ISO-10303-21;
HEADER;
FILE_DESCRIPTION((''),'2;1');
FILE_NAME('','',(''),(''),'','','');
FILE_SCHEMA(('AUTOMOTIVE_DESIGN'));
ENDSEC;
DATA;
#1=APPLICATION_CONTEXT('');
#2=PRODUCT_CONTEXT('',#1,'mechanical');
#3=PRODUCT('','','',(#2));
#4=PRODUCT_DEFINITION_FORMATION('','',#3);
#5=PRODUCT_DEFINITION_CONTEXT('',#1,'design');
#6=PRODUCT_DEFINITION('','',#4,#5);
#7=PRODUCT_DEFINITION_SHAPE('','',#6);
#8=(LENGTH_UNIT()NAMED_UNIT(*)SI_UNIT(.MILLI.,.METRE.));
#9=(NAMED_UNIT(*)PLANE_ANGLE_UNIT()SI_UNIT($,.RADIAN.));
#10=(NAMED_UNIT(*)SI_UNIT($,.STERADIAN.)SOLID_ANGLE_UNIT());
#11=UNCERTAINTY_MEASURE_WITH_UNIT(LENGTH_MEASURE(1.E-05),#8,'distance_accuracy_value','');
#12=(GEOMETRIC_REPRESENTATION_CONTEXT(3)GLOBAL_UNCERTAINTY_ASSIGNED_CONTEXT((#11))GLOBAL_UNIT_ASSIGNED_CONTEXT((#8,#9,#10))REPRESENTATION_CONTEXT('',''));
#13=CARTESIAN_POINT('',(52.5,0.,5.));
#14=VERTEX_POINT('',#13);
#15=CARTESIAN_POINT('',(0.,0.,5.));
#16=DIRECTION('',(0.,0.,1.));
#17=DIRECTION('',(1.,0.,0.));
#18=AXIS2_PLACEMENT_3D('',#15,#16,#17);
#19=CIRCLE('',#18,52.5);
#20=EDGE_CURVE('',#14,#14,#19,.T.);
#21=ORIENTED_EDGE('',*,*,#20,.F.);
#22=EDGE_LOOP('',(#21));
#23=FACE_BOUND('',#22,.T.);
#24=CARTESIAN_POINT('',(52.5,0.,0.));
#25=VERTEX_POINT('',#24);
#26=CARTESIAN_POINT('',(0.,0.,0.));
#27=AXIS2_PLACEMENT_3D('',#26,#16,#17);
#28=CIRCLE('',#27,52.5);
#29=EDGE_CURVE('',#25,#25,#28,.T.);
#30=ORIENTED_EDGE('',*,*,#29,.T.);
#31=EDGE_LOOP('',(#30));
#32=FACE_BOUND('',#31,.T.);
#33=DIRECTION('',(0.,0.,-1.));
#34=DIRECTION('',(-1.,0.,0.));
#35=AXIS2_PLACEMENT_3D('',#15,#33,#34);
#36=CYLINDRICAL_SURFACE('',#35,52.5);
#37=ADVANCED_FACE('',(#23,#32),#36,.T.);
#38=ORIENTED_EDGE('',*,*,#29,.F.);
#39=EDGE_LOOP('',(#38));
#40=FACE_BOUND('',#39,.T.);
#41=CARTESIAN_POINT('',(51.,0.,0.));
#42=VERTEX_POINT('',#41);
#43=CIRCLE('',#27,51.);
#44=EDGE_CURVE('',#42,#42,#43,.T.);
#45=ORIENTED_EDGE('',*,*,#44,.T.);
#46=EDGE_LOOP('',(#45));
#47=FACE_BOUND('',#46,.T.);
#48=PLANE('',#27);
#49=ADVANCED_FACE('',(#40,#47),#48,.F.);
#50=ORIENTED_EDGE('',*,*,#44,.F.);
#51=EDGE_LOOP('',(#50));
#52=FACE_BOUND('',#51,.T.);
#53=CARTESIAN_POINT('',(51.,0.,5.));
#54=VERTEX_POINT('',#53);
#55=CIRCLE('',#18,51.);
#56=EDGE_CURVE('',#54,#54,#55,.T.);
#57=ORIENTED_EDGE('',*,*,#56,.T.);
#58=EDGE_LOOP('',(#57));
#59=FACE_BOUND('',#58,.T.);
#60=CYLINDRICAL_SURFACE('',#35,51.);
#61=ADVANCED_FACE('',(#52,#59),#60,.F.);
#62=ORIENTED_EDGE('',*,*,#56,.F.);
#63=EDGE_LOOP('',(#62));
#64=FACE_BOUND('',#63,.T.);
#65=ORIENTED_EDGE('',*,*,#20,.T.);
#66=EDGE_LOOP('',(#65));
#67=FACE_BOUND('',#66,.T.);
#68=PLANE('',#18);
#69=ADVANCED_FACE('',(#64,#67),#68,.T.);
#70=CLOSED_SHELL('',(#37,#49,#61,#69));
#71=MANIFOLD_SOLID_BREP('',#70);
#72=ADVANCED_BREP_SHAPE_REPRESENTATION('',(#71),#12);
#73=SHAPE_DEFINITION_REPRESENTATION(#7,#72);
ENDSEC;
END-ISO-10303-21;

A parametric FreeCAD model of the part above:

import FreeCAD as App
import Part
import Sketcher
Q = App.Units.Quantity

doc = App.newDocument("Part")
body = doc.addObject("PartDesign::Body", "Body")

# Sketch on XY plane
sketch1 = body.newObject("Sketcher::SketchObject", "Sketch")
sketch1.AttachmentSupport = (doc.getObject("XY_Plane"), [""])
sketch1.MapMode = "FlatFace"
sketch1.addGeometry([
    Part.Circle(App.Vector(0, 0, 0), App.Vector(0, 0, 1), 52),
    Part.Circle(App.Vector(0, 0, 0), App.Vector(0, 0, 1), 51),
], False)
sketch1.addConstraint([
    Sketcher.Constraint("Coincident", 0, 3, -1, 1),
    Sketcher.Constraint("Coincident", 1, 3, -1, 1),
    Sketcher.Constraint("Diameter", 0, Q("105 mm")),
    Sketcher.Constraint("Diameter", 1, Q("102 mm")),
])
pad1 = body.newObject("PartDesign::Pad", "Pad")
pad1.Profile = sketch1
pad1.Length = 5

doc.recompute()
